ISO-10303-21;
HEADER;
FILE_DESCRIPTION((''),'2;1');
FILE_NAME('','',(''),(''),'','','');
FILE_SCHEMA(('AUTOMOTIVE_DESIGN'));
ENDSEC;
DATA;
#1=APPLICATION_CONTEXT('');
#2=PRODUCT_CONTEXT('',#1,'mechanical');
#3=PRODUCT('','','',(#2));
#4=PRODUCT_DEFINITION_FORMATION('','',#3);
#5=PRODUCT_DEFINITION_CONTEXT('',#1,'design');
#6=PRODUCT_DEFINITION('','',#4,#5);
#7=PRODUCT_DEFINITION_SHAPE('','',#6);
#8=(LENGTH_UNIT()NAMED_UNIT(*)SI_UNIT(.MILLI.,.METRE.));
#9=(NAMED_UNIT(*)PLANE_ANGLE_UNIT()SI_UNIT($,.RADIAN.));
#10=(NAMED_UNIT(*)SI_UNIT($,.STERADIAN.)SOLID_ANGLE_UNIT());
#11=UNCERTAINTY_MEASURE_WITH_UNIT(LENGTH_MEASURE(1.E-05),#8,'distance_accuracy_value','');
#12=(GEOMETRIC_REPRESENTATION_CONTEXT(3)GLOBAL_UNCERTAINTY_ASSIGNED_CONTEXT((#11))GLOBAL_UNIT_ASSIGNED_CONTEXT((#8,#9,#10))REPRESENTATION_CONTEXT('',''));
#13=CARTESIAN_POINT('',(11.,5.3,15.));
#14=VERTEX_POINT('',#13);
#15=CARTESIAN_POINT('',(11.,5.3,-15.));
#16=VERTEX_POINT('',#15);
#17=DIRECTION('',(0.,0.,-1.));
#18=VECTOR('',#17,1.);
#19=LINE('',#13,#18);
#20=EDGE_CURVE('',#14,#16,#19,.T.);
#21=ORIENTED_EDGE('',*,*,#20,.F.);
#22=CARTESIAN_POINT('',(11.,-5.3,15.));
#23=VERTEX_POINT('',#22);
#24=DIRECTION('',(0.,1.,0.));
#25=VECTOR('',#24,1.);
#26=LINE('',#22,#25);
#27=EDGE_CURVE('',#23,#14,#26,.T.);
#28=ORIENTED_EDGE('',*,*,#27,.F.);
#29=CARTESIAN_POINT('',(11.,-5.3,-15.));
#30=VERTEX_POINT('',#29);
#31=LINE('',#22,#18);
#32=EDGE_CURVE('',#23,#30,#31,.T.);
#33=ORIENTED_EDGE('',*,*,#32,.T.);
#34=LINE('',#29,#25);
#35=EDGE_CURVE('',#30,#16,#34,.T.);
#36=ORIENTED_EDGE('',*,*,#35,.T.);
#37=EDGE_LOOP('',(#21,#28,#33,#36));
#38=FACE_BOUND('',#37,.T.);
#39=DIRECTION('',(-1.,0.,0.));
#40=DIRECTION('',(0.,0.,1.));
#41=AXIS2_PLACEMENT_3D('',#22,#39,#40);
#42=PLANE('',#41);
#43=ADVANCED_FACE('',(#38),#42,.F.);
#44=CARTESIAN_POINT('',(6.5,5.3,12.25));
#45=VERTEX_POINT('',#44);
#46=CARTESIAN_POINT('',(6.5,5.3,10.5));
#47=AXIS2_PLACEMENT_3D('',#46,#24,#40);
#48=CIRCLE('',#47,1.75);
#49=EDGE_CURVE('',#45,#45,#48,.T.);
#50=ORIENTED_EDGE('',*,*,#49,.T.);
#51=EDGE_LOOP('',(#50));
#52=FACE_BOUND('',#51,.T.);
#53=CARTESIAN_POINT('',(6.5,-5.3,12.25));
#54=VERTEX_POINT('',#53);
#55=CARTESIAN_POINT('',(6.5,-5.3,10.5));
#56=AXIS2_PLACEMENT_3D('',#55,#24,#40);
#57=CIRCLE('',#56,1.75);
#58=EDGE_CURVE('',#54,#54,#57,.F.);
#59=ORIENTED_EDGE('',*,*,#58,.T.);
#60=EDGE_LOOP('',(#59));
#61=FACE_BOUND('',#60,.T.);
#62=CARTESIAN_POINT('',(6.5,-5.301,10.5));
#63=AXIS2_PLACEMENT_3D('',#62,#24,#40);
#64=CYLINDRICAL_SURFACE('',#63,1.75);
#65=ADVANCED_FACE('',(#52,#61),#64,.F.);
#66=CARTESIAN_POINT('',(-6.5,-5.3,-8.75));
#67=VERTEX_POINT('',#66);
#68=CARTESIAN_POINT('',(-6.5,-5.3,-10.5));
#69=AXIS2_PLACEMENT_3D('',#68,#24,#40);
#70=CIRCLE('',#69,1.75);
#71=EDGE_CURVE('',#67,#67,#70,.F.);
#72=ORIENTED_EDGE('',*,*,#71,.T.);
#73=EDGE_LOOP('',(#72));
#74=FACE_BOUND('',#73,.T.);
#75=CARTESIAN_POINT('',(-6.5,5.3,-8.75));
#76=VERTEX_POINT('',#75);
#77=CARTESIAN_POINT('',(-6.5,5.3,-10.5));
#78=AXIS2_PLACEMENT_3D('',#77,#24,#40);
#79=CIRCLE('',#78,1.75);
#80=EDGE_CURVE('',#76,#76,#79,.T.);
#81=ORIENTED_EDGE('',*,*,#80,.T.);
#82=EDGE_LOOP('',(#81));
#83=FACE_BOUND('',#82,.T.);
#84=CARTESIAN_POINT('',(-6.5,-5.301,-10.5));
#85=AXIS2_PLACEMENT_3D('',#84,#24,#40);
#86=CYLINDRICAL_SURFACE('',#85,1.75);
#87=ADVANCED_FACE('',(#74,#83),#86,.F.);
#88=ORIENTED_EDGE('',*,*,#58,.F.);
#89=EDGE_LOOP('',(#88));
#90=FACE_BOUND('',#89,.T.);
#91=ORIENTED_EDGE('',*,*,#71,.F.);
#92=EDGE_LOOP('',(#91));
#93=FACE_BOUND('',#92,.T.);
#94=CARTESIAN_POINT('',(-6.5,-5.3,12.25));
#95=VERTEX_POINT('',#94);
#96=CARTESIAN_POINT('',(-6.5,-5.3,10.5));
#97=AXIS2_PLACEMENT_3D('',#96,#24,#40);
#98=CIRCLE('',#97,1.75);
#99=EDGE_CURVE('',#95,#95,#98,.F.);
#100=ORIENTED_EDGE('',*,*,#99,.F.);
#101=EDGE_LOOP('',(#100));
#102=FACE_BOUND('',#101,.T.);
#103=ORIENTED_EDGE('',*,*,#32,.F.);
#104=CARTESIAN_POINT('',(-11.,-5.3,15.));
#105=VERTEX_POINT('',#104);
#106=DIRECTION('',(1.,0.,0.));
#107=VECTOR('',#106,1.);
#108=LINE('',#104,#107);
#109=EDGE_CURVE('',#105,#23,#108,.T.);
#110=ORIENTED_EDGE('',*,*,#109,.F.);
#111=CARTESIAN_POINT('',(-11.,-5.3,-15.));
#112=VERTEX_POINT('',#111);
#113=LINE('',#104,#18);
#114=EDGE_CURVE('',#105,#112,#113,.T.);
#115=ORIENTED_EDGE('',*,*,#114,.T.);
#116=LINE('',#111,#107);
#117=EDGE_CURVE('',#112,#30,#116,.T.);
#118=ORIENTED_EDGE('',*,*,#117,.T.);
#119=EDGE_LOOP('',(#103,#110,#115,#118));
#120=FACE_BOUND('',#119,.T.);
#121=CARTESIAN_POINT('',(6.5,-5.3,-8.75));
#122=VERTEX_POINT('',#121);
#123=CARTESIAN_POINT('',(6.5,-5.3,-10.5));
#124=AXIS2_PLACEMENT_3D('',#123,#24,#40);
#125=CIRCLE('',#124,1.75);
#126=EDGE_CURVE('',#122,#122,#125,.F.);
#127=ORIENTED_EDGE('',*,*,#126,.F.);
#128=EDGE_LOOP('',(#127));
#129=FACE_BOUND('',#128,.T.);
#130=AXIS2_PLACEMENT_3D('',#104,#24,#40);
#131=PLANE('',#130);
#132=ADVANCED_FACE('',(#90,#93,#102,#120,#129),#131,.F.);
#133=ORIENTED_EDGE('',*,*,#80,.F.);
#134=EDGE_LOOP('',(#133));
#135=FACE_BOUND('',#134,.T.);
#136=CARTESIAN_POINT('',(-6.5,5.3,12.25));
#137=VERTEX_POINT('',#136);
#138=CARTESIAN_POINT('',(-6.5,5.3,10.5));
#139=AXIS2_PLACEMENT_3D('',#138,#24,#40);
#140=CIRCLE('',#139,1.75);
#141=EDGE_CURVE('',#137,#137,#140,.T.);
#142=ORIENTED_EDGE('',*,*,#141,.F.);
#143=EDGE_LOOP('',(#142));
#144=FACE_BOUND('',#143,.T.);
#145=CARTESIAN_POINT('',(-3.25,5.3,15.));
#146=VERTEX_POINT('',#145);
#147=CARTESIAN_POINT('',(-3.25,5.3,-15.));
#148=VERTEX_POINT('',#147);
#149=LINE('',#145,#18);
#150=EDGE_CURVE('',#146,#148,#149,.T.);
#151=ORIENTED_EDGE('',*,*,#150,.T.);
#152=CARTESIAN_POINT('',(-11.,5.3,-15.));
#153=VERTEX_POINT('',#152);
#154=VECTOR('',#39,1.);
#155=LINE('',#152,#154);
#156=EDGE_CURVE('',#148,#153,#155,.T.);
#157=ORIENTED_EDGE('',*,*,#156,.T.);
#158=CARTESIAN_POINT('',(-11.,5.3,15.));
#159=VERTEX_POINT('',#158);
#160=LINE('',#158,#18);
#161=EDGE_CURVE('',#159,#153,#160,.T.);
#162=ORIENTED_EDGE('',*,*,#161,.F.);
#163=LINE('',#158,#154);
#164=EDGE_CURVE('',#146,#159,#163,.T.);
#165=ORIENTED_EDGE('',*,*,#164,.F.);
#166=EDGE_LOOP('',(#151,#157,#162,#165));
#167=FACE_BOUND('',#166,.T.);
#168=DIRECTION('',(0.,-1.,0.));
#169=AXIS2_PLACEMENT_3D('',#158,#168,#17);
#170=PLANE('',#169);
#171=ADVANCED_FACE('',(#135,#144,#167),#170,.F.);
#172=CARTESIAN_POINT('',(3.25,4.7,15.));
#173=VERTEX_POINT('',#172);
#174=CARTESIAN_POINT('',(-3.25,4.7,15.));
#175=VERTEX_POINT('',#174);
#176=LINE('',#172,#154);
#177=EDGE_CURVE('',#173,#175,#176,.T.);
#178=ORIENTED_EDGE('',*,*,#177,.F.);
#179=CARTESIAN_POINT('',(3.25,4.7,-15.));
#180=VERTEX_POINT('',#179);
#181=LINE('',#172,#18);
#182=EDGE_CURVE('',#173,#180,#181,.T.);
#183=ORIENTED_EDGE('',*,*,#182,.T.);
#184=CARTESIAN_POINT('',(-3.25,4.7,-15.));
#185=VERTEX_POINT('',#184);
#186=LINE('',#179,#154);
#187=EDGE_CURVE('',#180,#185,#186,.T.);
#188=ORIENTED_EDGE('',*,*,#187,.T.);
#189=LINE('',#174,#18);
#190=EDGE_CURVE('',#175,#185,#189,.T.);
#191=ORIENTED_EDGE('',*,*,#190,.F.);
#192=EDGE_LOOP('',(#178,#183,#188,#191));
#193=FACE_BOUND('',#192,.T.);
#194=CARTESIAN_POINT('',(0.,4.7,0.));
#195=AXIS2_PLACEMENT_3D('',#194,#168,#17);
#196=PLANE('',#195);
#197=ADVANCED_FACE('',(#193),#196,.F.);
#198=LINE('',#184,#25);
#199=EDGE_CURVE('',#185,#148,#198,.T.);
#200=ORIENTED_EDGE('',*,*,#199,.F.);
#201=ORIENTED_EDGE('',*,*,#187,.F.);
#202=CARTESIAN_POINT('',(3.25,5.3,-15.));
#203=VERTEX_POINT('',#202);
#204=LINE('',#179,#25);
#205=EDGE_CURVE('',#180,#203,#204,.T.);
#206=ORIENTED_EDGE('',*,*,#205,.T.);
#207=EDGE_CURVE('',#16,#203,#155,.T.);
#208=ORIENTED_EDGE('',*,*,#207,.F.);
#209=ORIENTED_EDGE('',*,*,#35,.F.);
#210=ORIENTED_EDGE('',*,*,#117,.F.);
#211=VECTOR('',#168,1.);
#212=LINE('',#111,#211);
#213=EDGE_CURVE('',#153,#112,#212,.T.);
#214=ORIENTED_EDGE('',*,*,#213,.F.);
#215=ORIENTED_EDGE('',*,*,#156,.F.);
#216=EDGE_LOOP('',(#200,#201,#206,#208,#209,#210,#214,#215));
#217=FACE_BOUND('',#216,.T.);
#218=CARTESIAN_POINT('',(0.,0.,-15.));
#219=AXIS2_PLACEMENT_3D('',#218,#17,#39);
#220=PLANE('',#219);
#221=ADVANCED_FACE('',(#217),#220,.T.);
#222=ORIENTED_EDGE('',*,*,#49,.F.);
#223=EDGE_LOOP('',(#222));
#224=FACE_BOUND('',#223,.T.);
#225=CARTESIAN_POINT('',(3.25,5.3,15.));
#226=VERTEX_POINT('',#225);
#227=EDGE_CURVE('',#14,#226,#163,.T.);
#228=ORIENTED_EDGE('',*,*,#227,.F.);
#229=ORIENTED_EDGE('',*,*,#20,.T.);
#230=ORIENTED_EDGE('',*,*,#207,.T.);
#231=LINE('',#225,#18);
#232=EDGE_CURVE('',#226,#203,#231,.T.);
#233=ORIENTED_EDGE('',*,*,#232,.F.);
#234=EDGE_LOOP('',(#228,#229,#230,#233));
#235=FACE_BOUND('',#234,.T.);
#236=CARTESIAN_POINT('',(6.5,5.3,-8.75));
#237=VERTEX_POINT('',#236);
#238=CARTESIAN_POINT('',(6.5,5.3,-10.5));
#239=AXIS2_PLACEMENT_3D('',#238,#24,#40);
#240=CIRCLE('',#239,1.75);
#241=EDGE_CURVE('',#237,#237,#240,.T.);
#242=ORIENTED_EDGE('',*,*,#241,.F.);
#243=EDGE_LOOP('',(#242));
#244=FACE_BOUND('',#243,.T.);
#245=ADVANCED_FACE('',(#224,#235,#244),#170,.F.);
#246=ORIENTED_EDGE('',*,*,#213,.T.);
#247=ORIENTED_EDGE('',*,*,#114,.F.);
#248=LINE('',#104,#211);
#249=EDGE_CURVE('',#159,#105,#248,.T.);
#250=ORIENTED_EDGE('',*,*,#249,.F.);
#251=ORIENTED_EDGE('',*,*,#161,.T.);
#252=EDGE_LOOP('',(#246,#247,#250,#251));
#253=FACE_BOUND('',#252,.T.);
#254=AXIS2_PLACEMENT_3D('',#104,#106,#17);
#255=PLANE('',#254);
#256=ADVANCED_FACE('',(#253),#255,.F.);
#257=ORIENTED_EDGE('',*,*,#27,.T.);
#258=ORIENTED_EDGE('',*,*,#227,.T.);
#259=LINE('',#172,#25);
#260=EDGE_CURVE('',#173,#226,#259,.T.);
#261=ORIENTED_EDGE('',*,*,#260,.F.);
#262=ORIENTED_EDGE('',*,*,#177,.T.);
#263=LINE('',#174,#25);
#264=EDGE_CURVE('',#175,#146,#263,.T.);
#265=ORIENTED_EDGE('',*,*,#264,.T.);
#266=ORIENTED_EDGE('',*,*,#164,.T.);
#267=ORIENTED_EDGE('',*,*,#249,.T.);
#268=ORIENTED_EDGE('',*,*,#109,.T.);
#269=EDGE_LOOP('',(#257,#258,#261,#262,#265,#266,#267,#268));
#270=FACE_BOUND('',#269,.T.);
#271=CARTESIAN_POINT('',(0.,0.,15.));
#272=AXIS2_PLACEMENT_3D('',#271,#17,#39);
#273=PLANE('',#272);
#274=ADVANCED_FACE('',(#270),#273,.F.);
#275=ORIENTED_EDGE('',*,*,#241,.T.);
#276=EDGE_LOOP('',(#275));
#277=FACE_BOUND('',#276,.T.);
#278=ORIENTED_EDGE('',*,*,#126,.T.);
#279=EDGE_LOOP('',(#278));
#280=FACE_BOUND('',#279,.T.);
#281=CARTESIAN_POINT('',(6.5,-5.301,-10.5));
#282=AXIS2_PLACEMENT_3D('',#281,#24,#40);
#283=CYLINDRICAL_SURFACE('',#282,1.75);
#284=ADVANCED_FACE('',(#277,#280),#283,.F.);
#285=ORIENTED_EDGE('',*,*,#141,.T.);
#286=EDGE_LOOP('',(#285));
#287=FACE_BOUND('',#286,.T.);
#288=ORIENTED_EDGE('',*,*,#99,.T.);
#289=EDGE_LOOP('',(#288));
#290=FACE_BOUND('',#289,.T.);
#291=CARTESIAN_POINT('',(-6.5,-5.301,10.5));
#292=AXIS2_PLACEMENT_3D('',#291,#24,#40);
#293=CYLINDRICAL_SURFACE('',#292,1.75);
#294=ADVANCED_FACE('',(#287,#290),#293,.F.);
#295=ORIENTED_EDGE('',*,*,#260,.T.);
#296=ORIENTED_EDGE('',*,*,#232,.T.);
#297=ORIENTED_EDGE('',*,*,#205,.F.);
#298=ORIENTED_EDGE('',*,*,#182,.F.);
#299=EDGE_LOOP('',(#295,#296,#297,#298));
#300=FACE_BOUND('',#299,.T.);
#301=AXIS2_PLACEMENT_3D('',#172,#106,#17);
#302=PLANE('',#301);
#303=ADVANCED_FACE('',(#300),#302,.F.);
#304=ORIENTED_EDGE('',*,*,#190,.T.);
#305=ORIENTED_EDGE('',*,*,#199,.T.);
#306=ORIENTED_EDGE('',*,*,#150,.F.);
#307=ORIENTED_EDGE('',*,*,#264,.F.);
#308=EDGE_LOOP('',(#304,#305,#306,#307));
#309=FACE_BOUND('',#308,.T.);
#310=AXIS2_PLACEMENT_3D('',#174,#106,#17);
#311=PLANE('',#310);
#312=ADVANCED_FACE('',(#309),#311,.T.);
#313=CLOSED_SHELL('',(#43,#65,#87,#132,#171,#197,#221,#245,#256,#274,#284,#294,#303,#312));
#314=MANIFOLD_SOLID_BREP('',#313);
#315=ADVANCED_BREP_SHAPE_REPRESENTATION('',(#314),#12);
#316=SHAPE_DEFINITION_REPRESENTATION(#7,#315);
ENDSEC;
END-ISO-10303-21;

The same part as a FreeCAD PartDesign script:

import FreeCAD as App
import Part
import Sketcher
Q = App.Units.Quantity


def add_polygon(sketch, points):
    """Adds a closed chain of lines whose ends are joined by coincident constraints."""
    first, n = sketch.GeometryCount, len(points)
    for a, b in zip(points, points[1:] + points[:1]):
        sketch.addGeometry(Part.LineSegment(App.Vector(*a, 0), App.Vector(*b, 0)), False)
    for i in range(n):
        sketch.addConstraint(Sketcher.Constraint("Coincident", first + i, 2, first + (i + 1) % n, 1))

doc = App.newDocument("Part")
params = doc.addObject("Spreadsheet::Sheet", "Params")
for row, (alias, value) in enumerate([
    ("sketch1_width", "22 mm"),
    ("sketch1_height", "10.6 mm"),
    ("pad1_length", "30 mm"),
    ("sketch2_diameter", "3.5 mm"),
    ("sketch3_diameter", "3.5 mm"),
    ("sketch4_diameter", "3.5 mm"),
    ("sketch5_diameter", "3.5 mm"),
    ("sketch6_height", "30 mm"),
    ("sketch6_width", "6.5 mm"),
    ("pocket5_length", "0.6 mm"),
], start=1):
    params.set(f"A{row}", alias)
    params.set(f"B{row}", "=" + value)
    params.setAlias(f"B{row}", alias)

body = doc.addObject("PartDesign::Body", "Body")

sketch1 = body.newObject("Sketcher::SketchObject", "Sketch")
sketch1.AttachmentSupport = (doc.getObject("XY_Plane"), [""])
sketch1.MapMode = "FlatFace"
add_polygon(sketch1, [(-11, 5), (-11, -5), (11, -5), (11, 5)])
sketch1.addConstraint([
    Sketcher.Constraint("Vertical", 0),
    Sketcher.Constraint("Horizontal", 1),
    Sketcher.Constraint("Vertical", 2),
    Sketcher.Constraint("Horizontal", 3),
    Sketcher.Constraint("Symmetric", 0, 2, 2, 2, -1, 1),
    Sketcher.Constraint("DistanceX", 1, 1, 1, 2, Q("22 mm")),
    Sketcher.Constraint("DistanceY", 0, 2, 0, 1, Q("10.6 mm")),
])
sketch1.setExpression("Constraints[9]", "Params.sketch1_width")
sketch1.setExpression("Constraints[10]", "Params.sketch1_height")
pad1 = body.newObject("PartDesign::Pad", "Pad")
pad1.Profile = sketch1
pad1.setExpression("Length", "Params.pad1_length")
pad1.Midplane = True

sketch2 = body.newObject("Sketcher::SketchObject", "Sketch001")
sketch2.AttachmentSupport = (doc.getObject("XZ_Plane"), [""])
sketch2.MapMode = "FlatFace"
sketch2.AttachmentOffset = App.Placement(App.Vector(0, 0, -5.3), App.Rotation())
sketch2.addGeometry(Part.Circle(App.Vector(6.5, -10.5, 0), App.Vector(0, 0, 1), 1.8), False)
sketch2.addConstraint([
    Sketcher.Constraint("Diameter", 0, Q("3.5 mm")),
    Sketcher.Constraint("DistanceX", -1, 1, 0, 3, Q("6.5 mm")),
    Sketcher.Constraint("DistanceY", 0, 3, -1, 1, Q("10.5 mm")),
])
sketch2.setExpression("Constraints[0]", "Params.sketch2_diameter")
pocket1 = body.newObject("PartDesign::Pocket", "Pocket")
pocket1.Profile = sketch2
pocket1.Type = "UpToFirst"
pocket1.Reversed = True

sketch3 = body.newObject("Sketcher::SketchObject", "Sketch002")
sketch3.AttachmentSupport = (doc.getObject("XZ_Plane"), [""])
sketch3.MapMode = "FlatFace"
sketch3.AttachmentOffset = App.Placement(App.Vector(0, 0, -5.3), App.Rotation())
sketch3.addGeometry(Part.Circle(App.Vector(6.5, 10.5, 0), App.Vector(0, 0, 1), 1.8), False)
sketch3.addConstraint([
    Sketcher.Constraint("Diameter", 0, Q("3.5 mm")),
    Sketcher.Constraint("DistanceX", -1, 1, 0, 3, Q("6.5 mm")),
    Sketcher.Constraint("DistanceY", -1, 1, 0, 3, Q("10.5 mm")),
])
sketch3.setExpression("Constraints[0]", "Params.sketch3_diameter")
pocket2 = body.newObject("PartDesign::Pocket", "Pocket001")
pocket2.Profile = sketch3
pocket2.Type = "UpToFirst"
pocket2.Reversed = True

sketch4 = body.newObject("Sketcher::SketchObject", "Sketch003")
sketch4.AttachmentSupport = (doc.getObject("XZ_Plane"), [""])
sketch4.MapMode = "FlatFace"
sketch4.AttachmentOffset = App.Placement(App.Vector(0, 0, -5.3), App.Rotation())
sketch4.addGeometry(Part.Circle(App.Vector(-6.5, 10.5, 0), App.Vector(0, 0, 1), 1.8), False)
sketch4.addConstraint([
    Sketcher.Constraint("Diameter", 0, Q("3.5 mm")),
    Sketcher.Constraint("DistanceX", 0, 3, -1, 1, Q("6.5 mm")),
    Sketcher.Constraint("DistanceY", -1, 1, 0, 3, Q("10.5 mm")),
])
sketch4.setExpression("Constraints[0]", "Params.sketch4_diameter")
pocket3 = body.newObject("PartDesign::Pocket", "Pocket002")
pocket3.Profile = sketch4
pocket3.Type = "UpToFirst"
pocket3.Reversed = True

sketch5 = body.newObject("Sketcher::SketchObject", "Sketch004")
sketch5.AttachmentSupport = (doc.getObject("XZ_Plane"), [""])
sketch5.MapMode = "FlatFace"
sketch5.AttachmentOffset = App.Placement(App.Vector(0, 0, -5.3), App.Rotation())
sketch5.addGeometry(Part.Circle(App.Vector(-6.5, -10.5, 0), App.Vector(0, 0, 1), 1.8), False)
sketch5.addConstraint([
    Sketcher.Constraint("Diameter", 0, Q("3.5 mm")),
    Sketcher.Constraint("DistanceX", 0, 3, -1, 1, Q("6.5 mm")),
    Sketcher.Constraint("DistanceY", 0, 3, -1, 1, Q("10.5 mm")),
])
sketch5.setExpression("Constraints[0]", "Params.sketch5_diameter")
pocket4 = body.newObject("PartDesign::Pocket", "Pocket003")
pocket4.Profile = sketch5
pocket4.Type = "UpToFirst"
pocket4.Reversed = True

sketch6 = body.newObject("Sketcher::SketchObject", "Sketch005")
sketch6.AttachmentSupport = (doc.getObject("XZ_Plane"), [""])
sketch6.MapMode = "FlatFace"
sketch6.AttachmentOffset = App.Placement(App.Vector(0, 0, -5.3), App.Rotation())
add_polygon(sketch6, [(-3, -15), (-3, 15), (3, 15), (3, -15)])
sketch6.addConstraint([
    Sketcher.Constraint("Vertical", 0),
    Sketcher.Constraint("Horizontal", 1),
    Sketcher.Constraint("Vertical", 2),
    Sketcher.Constraint("Horizontal", 3),
    Sketcher.Constraint("Symmetric", 0, 2, 2, 2, -1, 1),
    Sketcher.Constraint("DistanceY", 0, 1, 0, 2, Q("30 mm")),
    Sketcher.Constraint("DistanceX", 1, 1, 1, 2, Q("6.5 mm")),
])
sketch6.setExpression("Constraints[9]", "Params.sketch6_height")
sketch6.setExpression("Constraints[10]", "Params.sketch6_width")
pocket5 = body.newObject("PartDesign::Pocket", "Pocket004")
pocket5.Profile = sketch6
pocket5.setExpression("Length", "Params.pocket5_length")
pocket5.Reversed = True

doc.recompute()
